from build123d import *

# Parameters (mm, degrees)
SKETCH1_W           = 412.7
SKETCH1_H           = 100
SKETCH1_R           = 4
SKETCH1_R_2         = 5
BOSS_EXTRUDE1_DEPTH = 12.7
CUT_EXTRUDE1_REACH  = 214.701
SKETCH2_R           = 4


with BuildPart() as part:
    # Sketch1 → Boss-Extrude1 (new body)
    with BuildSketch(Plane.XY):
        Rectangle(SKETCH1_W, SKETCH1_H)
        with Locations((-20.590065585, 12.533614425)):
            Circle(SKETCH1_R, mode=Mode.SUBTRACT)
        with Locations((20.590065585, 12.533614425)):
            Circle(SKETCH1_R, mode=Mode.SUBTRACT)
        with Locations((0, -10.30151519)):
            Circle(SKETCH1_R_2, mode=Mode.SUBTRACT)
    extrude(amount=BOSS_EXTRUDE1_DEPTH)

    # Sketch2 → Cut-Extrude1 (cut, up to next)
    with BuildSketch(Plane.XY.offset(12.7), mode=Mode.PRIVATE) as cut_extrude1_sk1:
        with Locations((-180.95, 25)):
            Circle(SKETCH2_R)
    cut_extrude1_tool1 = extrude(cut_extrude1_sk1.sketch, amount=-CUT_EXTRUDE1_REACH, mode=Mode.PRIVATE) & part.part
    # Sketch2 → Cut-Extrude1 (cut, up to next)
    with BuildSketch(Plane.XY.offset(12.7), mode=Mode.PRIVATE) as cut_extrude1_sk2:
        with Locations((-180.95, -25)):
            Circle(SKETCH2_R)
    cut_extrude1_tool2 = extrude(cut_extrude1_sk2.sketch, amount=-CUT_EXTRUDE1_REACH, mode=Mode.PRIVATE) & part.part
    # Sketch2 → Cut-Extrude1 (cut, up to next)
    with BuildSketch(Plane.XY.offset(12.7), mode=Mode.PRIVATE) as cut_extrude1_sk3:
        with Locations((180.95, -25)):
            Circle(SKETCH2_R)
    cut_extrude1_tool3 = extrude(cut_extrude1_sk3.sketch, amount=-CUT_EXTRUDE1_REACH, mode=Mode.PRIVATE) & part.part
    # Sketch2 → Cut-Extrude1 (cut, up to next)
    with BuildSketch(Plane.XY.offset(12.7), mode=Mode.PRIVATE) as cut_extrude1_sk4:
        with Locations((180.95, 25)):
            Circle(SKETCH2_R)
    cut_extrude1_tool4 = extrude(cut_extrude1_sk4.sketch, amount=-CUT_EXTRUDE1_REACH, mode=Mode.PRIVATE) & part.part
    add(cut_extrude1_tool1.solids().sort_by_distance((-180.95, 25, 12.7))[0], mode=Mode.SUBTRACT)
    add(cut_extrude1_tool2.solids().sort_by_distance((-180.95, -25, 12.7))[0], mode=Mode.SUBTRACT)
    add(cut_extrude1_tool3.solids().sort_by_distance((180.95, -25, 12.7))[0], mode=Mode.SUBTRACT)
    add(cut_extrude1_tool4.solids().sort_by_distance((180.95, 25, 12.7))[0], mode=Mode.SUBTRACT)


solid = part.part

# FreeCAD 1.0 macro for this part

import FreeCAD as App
import Part
import Sketcher


def add_polygon(sketch, points):
    """Adds a closed chain of lines whose ends are joined by coincident constraints."""
    first, n = sketch.GeometryCount, len(points)
    for a, b in zip(points, points[1:] + points[:1]):
        sketch.addGeometry(Part.LineSegment(App.Vector(*a, 0), App.Vector(*b, 0)), False)
    for i in range(n):
        sketch.addConstraint(Sketcher.Constraint("Coincident", first + i, 2, first + (i + 1) % n, 1))

doc = App.newDocument("Part")
body = doc.addObject("PartDesign::Body", "Body")

# Sketch on XY plane
sketch1 = doc.addObject("Sketcher::SketchObject", "Sketch")
body.addObject(sketch1)
sketch1.AttachmentSupport = (doc.XY_Plane, [""])
sketch1.MapMode = "FlatFace"
add_polygon(sketch1, [(-206.3, 50), (-206.3, -50), (206.3, -50), (206.3, 50)])  # lines 0-3
sketch1.addGeometry(Part.Circle(App.Vector(0, -10.3, 0), App.Vector(0, 0, 1), 5), False)  # 4
sketch1.addGeometry(Part.Circle(App.Vector(-20.6, 12.5, 0), App.Vector(0, 0, 1), 4), False)  # 5
sketch1.addGeometry(Part.Circle(App.Vector(20.6, 12.5, 0), App.Vector(0, 0, 1), 4), False)  # 6
sketch1.addConstraint([
    Sketcher.Constraint("Vertical", 0),
    Sketcher.Constraint("Horizontal", 1),
    Sketcher.Constraint("Vertical", 2),
    Sketcher.Constraint("Horizontal", 3),
    Sketcher.Constraint("Equal", 5, 6),
    Sketcher.Constraint("Symmetric", 0, 2, 2, 2, -1, 1),
    Sketcher.Constraint("Symmetric", 5, 3, 6, 3, -2),
    Sketcher.Constraint("PointOnObject", 4, 3, -2),
    Sketcher.Constraint("Diameter", 4, 10.0),
    Sketcher.Constraint("Diameter", 5, 8.0),
    Sketcher.Constraint("DistanceY", 0, 2, 0, 1, 100.0),
    Sketcher.Constraint("DistanceX", 1, 1, 1, 2, 412.7),
    Sketcher.Constraint("DistanceY", 4, 3, 5, 3, 22.83513),
    Sketcher.Constraint("DistanceX", 5, 3, 6, 3, 41.180131),
    Sketcher.Constraint("DistanceY", 4, 3, -1, 1, 10.301515),
])
pad1 = doc.addObject("PartDesign::Pad", "Pad")
body.addObject(pad1)
pad1.Profile = sketch1
pad1.Length = 12.7

# Sketch on XY plane
sketch2 = doc.addObject("Sketcher::SketchObject", "Sketch001")
body.addObject(sketch2)
sketch2.AttachmentSupport = (doc.XY_Plane, [""])
sketch2.MapMode = "FlatFace"
sketch2.AttachmentOffset = App.Placement(App.Vector(0, 0, 12.7), App.Rotation())
sketch2.addGeometry(Part.Circle(App.Vector(-180.9, 25, 0), App.Vector(0, 0, 1), 4), False)
sketch2.addConstraint([
    Sketcher.Constraint("Diameter", 0, 8.0),
    Sketcher.Constraint("DistanceY", -1, 1, 0, 3, 25.0),
    Sketcher.Constraint("DistanceX", 0, 3, -1, 1, 180.95),
])
pocket1 = doc.addObject("PartDesign::Pocket", "Pocket")
body.addObject(pocket1)
pocket1.Profile = sketch2
pocket1.Type = "UpToFirst"

# Sketch on XY plane
sketch3 = doc.addObject("Sketcher::SketchObject", "Sketch002")
body.addObject(sketch3)
sketch3.AttachmentSupport = (doc.XY_Plane, [""])
sketch3.MapMode = "FlatFace"
sketch3.AttachmentOffset = App.Placement(App.Vector(0, 0, 12.7), App.Rotation())
sketch3.addGeometry(Part.Circle(App.Vector(-180.9, -25, 0), App.Vector(0, 0, 1), 4), False)
sketch3.addConstraint([
    Sketcher.Constraint("Diameter", 0, 8.0),
    Sketcher.Constraint("DistanceY", 0, 3, -1, 1, 25.0),
    Sketcher.Constraint("DistanceX", 0, 3, -1, 1, 180.95),
])
pocket2 = doc.addObject("PartDesign::Pocket", "Pocket001")
body.addObject(pocket2)
pocket2.Profile = sketch3
pocket2.Type = "UpToFirst"

# Sketch on XY plane
sketch4 = doc.addObject("Sketcher::SketchObject", "Sketch003")
body.addObject(sketch4)
sketch4.AttachmentSupport = (doc.XY_Plane, [""])
sketch4.MapMode = "FlatFace"
sketch4.AttachmentOffset = App.Placement(App.Vector(0, 0, 12.7), App.Rotation())
sketch4.addGeometry(Part.Circle(App.Vector(180.9, -25, 0), App.Vector(0, 0, 1), 4), False)
sketch4.addConstraint([
    Sketcher.Constraint("Diameter", 0, 8.0),
    Sketcher.Constraint("DistanceY", 0, 3, -1, 1, 25.0),
    Sketcher.Constraint("DistanceX", -1, 1, 0, 3, 180.95),
])
pocket3 = doc.addObject("PartDesign::Pocket", "Pocket002")
body.addObject(pocket3)
pocket3.Profile = sketch4
pocket3.Type = "UpToFirst"

# Sketch on XY plane
sketch5 = doc.addObject("Sketcher::SketchObject", "Sketch004")
body.addObject(sketch5)
sketch5.AttachmentSupport = (doc.XY_Plane, [""])
sketch5.MapMode = "FlatFace"
sketch5.AttachmentOffset = App.Placement(App.Vector(0, 0, 12.7), App.Rotation())
sketch5.addGeometry(Part.Circle(App.Vector(180.9, 25, 0), App.Vector(0, 0, 1), 4), False)
sketch5.addConstraint([
    Sketcher.Constraint("Diameter", 0, 8.0),
    Sketcher.Constraint("DistanceY", -1, 1, 0, 3, 25.0),
    Sketcher.Constraint("DistanceX", -1, 1, 0, 3, 180.95),
])
pocket4 = doc.addObject("PartDesign::Pocket", "Pocket003")
body.addObject(pocket4)
pocket4.Profile = sketch5
pocket4.Type = "UpToFirst"

doc.recompute()
